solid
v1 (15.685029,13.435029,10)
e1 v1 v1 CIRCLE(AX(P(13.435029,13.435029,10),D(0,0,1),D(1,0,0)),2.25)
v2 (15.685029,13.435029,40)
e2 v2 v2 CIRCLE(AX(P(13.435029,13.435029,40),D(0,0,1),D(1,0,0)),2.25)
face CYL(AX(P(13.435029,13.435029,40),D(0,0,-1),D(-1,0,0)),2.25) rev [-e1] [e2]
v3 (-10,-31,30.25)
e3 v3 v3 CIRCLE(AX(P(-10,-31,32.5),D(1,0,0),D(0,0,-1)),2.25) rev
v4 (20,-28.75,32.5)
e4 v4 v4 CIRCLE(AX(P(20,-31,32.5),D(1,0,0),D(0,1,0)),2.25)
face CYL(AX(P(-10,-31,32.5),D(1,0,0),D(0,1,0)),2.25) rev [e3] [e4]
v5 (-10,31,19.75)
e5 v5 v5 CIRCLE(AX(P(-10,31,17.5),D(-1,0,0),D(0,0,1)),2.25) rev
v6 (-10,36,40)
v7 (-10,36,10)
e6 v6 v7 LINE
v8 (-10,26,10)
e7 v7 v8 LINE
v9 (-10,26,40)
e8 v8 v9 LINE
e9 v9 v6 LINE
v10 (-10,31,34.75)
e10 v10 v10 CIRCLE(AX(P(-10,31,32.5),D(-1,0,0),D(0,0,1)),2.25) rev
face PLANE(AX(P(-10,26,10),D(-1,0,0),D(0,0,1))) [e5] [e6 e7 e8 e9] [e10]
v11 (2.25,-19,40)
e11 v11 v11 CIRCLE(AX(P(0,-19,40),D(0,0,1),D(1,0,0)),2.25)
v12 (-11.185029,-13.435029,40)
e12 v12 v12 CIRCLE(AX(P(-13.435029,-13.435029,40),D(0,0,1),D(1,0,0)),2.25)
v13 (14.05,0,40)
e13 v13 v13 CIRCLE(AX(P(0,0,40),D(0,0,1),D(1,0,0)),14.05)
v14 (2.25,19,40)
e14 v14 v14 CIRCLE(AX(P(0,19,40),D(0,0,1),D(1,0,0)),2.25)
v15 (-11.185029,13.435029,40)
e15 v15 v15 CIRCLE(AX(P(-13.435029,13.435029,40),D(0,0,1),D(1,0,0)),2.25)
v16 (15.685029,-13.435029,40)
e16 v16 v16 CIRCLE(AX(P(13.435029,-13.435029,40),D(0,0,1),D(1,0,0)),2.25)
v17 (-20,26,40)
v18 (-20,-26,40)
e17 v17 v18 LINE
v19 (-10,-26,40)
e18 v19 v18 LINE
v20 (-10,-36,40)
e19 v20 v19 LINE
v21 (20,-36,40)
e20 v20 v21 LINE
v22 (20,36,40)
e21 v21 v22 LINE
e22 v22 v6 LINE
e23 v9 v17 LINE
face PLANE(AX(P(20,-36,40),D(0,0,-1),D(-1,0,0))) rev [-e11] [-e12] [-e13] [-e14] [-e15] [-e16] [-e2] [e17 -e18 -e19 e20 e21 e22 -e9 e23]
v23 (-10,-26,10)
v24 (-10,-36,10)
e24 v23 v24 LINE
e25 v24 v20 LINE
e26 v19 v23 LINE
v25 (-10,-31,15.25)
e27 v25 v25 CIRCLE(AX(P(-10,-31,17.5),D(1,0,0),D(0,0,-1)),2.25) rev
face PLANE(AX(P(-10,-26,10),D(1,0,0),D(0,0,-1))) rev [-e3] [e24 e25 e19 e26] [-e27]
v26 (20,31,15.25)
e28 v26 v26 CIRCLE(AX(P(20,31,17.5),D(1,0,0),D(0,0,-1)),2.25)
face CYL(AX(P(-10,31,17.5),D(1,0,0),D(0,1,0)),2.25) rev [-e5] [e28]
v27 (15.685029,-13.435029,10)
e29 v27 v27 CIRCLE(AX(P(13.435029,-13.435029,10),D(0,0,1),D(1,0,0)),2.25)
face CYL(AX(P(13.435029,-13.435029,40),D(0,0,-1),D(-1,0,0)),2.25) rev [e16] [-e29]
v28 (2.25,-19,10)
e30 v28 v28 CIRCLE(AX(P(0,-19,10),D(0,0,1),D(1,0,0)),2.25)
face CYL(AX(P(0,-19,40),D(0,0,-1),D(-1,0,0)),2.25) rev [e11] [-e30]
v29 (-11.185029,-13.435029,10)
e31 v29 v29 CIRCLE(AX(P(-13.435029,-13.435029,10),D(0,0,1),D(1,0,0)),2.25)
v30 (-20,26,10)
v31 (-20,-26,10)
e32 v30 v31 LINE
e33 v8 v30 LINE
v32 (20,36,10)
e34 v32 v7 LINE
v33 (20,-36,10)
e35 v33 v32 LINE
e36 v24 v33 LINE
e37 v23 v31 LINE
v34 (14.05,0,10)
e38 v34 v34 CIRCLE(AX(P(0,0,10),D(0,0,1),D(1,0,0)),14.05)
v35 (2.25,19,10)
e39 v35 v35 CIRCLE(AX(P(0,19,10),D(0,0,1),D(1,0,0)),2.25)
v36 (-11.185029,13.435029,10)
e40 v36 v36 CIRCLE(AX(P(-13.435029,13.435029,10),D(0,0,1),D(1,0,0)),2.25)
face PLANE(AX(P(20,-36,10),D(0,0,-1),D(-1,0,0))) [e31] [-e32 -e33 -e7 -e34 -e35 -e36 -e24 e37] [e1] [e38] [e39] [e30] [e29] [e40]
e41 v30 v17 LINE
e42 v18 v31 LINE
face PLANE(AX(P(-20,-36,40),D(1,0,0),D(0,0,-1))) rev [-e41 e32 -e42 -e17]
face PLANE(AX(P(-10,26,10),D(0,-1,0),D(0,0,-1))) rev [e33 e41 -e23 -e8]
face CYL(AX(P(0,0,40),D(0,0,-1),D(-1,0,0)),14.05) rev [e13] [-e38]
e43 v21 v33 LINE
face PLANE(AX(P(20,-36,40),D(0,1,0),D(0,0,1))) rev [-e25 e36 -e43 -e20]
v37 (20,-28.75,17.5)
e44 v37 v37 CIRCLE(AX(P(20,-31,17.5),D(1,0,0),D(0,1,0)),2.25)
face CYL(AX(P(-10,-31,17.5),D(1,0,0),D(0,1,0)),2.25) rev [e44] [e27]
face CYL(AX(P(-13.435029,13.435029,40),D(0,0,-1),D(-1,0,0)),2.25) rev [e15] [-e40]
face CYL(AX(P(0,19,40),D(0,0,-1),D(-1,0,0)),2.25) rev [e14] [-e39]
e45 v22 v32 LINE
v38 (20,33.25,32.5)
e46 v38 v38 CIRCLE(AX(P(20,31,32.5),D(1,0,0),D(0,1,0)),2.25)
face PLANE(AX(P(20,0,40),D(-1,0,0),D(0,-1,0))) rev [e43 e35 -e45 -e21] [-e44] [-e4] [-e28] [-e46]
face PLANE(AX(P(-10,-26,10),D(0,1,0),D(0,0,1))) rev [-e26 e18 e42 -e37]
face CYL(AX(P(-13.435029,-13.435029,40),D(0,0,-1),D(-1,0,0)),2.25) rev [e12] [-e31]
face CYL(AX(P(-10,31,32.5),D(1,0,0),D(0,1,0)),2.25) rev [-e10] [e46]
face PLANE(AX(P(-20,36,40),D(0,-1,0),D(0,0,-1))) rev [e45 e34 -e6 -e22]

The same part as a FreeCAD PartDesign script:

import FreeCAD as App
import Part
import Sketcher

V = App.Vector


def add_polygon(sketch, points):
    """Adds a closed chain of lines whose ends are joined by coincident constraints."""
    first, n = sketch.GeometryCount, len(points)
    for a, b in zip(points, points[1:] + points[:1]):
        sketch.addGeometry(Part.LineSegment(App.Vector(*a, 0), App.Vector(*b, 0)), False)
    for i in range(n):
        sketch.addConstraint(Sketcher.Constraint("Coincident", first + i, 2, first + (i + 1) % n, 1))

doc = App.newDocument("Part")
body = doc.addObject("PartDesign::Body", "Body")

sketch1 = body.newObject("Sketcher::SketchObject", "Sketch")
sketch1.AttachmentSupport = (doc.getObject("XY_Plane"), [""])
sketch1.MapMode = "FlatFace"
sketch1.AttachmentOffset = App.Placement(V(0, 0, 10), App.Rotation())
add_polygon(sketch1, [(20, -36), (20, 36), (-20, 36), (-20, -36)])
sketch1.addGeometry(Part.Circle(V(13.435029, -13.435029, 0), V(0, 0, 1), 2.25), False)
sketch1.addGeometry(Part.Circle(V(0, -19, 0), V(0, 0, 1), 2.25), False)
sketch1.addGeometry(Part.Circle(V(-13.435029, -13.435029, 0), V(0, 0, 1), 2.25), False)
sketch1.addGeometry(Part.Circle(V(13.435029, 13.435029, 0), V(0, 0, 1), 2.25), False)
sketch1.addGeometry(Part.Circle(V(0, 0, 0), V(0, 0, 1), 14.05), False)
sketch1.addGeometry(Part.Circle(V(0, 19, 0), V(0, 0, 1), 2.25), False)
sketch1.addGeometry(Part.Circle(V(-13.435029, 13.435029, 0), V(0, 0, 1), 2.25), False)
sketch1.addConstraint([
    Sketcher.Constraint("Vertical", 0),
    Sketcher.Constraint("Horizontal", 1),
    Sketcher.Constraint("Vertical", 2),
    Sketcher.Constraint("Horizontal", 3),
    Sketcher.Constraint("Coincident", 8, 3, -1, 1),
    Sketcher.Constraint("Equal", 4, 5),
    Sketcher.Constraint("Equal", 5, 6),
    Sketcher.Constraint("Equal", 6, 7),
    Sketcher.Constraint("Equal", 7, 9),
    Sketcher.Constraint("Equal", 9, 10),
    Sketcher.Constraint("Symmetric", 6, 3, 7, 3, -1, 1),
    Sketcher.Constraint("Symmetric", 5, 3, 9, 3, -1, 1),
    Sketcher.Constraint("Symmetric", 4, 3, 10, 3, -1, 1),
    Sketcher.Constraint("Symmetric", 0, 2, 2, 2, -1, 1),
    Sketcher.Constraint("Symmetric", 4, 3, 6, 3, -2),
    Sketcher.Constraint("PointOnObject", 5, 3, -2),
    Sketcher.Constraint("Diameter", 4, 4.5),
    Sketcher.Constraint("Diameter", 8, 28.1),
    Sketcher.Constraint("DistanceX", 1, 2, 1, 1, 40.0),
    Sketcher.Constraint("DistanceY", 0, 1, 0, 2, 72.0),
    Sketcher.Constraint("DistanceY", 5, 3, -1, 1, 19.0),
    Sketcher.Constraint("DistanceX", -1, 1, 4, 3, 13.435029),
    Sketcher.Constraint("DistanceY", 4, 3, -1, 1, 13.435029),
])
pad1 = body.newObject("PartDesign::Pad", "Pad")
pad1.Profile = sketch1
pad1.Length = 30

sketch2 = body.newObject("Sketcher::SketchObject", "Sketch001")
sketch2.AttachmentSupport = (doc.getObject("YZ_Plane"), [""])
sketch2.MapMode = "FlatFace"
sketch2.AttachmentOffset = App.Placement(V(0, 0, 20), App.Rotation())
sketch2.addGeometry([
    Part.Circle(V(-31, 32.5, 0), V(0, 0, 1), 2.25),
    Part.Circle(V(-31, 17.5, 0), V(0, 0, 1), 2.25),
    Part.Circle(V(31, 32.5, 0), V(0, 0, 1), 2.25),
    Part.Circle(V(31, 17.5, 0), V(0, 0, 1), 2.25),
], False)
sketch2.addConstraint([
    Sketcher.Constraint("Equal", 0, 1),
    Sketcher.Constraint("Equal", 1, 2),
    Sketcher.Constraint("Equal", 2, 3),
    Sketcher.Constraint("Symmetric", 0, 3, 2, 3, -2),
    Sketcher.Constraint("Symmetric", 1, 3, 3, 3, -2),
    Sketcher.Constraint("Vertical", 0, 3, 1, 3),
    Sketcher.Constraint("Diameter", 0, 4.5),
    Sketcher.Constraint("DistanceX", 0, 3, -1, 1, 31.0),
    Sketcher.Constraint("DistanceY", 1, 3, 0, 3, 15.0),
    Sketcher.Constraint("DistanceY", -1, 1, 0, 3, 32.5),
])
pocket1 = body.newObject("PartDesign::Pocket", "Pocket")
pocket1.Profile = sketch2
pocket1.Length = 30

sketch3 = body.newObject("Sketcher::SketchObject", "Sketch002")
sketch3.AttachmentSupport = (doc.getObject("YZ_Plane"), [""])
sketch3.MapMode = "FlatFace"
sketch3.AttachmentOffset = App.Placement(V(0, 0, -20), App.Rotation())
add_polygon(sketch3, [(36, 10), (26, 10), (26, 40), (36, 40)])
add_polygon(sketch3, [(-26, 10), (-36, 10), (-36, 40), (-26, 40)])
sketch3.addConstraint([
    Sketcher.Constraint("Horizontal", 0),
    Sketcher.Constraint("Vertical", 1),
    Sketcher.Constraint("Horizontal", 2),
    Sketcher.Constraint("Vertical", 3),
    Sketcher.Constraint("Horizontal", 4),
    Sketcher.Constraint("Vertical", 5),
    Sketcher.Constraint("Horizontal", 6),
    Sketcher.Constraint("Vertical", 7),
    Sketcher.Constraint("Symmetric", 3, 2, 4, 2, -2),
    Sketcher.Constraint("Symmetric", 1, 2, 6, 2, -2),
    Sketcher.Constraint("DistanceX", 0, 2, 0, 1, 10.0),
    Sketcher.Constraint("DistanceY", 1, 1, 1, 2, 30.0),
    Sketcher.Constraint("DistanceX", -1, 1, 0, 2, 26.0),
    Sketcher.Constraint("DistanceY", -1, 1, 0, 2, 10.0),
])
pocket2 = body.newObject("PartDesign::Pocket", "Pocket001")
pocket2.Profile = sketch3
pocket2.Length = 10
pocket2.Reversed = True

doc.recompute()
